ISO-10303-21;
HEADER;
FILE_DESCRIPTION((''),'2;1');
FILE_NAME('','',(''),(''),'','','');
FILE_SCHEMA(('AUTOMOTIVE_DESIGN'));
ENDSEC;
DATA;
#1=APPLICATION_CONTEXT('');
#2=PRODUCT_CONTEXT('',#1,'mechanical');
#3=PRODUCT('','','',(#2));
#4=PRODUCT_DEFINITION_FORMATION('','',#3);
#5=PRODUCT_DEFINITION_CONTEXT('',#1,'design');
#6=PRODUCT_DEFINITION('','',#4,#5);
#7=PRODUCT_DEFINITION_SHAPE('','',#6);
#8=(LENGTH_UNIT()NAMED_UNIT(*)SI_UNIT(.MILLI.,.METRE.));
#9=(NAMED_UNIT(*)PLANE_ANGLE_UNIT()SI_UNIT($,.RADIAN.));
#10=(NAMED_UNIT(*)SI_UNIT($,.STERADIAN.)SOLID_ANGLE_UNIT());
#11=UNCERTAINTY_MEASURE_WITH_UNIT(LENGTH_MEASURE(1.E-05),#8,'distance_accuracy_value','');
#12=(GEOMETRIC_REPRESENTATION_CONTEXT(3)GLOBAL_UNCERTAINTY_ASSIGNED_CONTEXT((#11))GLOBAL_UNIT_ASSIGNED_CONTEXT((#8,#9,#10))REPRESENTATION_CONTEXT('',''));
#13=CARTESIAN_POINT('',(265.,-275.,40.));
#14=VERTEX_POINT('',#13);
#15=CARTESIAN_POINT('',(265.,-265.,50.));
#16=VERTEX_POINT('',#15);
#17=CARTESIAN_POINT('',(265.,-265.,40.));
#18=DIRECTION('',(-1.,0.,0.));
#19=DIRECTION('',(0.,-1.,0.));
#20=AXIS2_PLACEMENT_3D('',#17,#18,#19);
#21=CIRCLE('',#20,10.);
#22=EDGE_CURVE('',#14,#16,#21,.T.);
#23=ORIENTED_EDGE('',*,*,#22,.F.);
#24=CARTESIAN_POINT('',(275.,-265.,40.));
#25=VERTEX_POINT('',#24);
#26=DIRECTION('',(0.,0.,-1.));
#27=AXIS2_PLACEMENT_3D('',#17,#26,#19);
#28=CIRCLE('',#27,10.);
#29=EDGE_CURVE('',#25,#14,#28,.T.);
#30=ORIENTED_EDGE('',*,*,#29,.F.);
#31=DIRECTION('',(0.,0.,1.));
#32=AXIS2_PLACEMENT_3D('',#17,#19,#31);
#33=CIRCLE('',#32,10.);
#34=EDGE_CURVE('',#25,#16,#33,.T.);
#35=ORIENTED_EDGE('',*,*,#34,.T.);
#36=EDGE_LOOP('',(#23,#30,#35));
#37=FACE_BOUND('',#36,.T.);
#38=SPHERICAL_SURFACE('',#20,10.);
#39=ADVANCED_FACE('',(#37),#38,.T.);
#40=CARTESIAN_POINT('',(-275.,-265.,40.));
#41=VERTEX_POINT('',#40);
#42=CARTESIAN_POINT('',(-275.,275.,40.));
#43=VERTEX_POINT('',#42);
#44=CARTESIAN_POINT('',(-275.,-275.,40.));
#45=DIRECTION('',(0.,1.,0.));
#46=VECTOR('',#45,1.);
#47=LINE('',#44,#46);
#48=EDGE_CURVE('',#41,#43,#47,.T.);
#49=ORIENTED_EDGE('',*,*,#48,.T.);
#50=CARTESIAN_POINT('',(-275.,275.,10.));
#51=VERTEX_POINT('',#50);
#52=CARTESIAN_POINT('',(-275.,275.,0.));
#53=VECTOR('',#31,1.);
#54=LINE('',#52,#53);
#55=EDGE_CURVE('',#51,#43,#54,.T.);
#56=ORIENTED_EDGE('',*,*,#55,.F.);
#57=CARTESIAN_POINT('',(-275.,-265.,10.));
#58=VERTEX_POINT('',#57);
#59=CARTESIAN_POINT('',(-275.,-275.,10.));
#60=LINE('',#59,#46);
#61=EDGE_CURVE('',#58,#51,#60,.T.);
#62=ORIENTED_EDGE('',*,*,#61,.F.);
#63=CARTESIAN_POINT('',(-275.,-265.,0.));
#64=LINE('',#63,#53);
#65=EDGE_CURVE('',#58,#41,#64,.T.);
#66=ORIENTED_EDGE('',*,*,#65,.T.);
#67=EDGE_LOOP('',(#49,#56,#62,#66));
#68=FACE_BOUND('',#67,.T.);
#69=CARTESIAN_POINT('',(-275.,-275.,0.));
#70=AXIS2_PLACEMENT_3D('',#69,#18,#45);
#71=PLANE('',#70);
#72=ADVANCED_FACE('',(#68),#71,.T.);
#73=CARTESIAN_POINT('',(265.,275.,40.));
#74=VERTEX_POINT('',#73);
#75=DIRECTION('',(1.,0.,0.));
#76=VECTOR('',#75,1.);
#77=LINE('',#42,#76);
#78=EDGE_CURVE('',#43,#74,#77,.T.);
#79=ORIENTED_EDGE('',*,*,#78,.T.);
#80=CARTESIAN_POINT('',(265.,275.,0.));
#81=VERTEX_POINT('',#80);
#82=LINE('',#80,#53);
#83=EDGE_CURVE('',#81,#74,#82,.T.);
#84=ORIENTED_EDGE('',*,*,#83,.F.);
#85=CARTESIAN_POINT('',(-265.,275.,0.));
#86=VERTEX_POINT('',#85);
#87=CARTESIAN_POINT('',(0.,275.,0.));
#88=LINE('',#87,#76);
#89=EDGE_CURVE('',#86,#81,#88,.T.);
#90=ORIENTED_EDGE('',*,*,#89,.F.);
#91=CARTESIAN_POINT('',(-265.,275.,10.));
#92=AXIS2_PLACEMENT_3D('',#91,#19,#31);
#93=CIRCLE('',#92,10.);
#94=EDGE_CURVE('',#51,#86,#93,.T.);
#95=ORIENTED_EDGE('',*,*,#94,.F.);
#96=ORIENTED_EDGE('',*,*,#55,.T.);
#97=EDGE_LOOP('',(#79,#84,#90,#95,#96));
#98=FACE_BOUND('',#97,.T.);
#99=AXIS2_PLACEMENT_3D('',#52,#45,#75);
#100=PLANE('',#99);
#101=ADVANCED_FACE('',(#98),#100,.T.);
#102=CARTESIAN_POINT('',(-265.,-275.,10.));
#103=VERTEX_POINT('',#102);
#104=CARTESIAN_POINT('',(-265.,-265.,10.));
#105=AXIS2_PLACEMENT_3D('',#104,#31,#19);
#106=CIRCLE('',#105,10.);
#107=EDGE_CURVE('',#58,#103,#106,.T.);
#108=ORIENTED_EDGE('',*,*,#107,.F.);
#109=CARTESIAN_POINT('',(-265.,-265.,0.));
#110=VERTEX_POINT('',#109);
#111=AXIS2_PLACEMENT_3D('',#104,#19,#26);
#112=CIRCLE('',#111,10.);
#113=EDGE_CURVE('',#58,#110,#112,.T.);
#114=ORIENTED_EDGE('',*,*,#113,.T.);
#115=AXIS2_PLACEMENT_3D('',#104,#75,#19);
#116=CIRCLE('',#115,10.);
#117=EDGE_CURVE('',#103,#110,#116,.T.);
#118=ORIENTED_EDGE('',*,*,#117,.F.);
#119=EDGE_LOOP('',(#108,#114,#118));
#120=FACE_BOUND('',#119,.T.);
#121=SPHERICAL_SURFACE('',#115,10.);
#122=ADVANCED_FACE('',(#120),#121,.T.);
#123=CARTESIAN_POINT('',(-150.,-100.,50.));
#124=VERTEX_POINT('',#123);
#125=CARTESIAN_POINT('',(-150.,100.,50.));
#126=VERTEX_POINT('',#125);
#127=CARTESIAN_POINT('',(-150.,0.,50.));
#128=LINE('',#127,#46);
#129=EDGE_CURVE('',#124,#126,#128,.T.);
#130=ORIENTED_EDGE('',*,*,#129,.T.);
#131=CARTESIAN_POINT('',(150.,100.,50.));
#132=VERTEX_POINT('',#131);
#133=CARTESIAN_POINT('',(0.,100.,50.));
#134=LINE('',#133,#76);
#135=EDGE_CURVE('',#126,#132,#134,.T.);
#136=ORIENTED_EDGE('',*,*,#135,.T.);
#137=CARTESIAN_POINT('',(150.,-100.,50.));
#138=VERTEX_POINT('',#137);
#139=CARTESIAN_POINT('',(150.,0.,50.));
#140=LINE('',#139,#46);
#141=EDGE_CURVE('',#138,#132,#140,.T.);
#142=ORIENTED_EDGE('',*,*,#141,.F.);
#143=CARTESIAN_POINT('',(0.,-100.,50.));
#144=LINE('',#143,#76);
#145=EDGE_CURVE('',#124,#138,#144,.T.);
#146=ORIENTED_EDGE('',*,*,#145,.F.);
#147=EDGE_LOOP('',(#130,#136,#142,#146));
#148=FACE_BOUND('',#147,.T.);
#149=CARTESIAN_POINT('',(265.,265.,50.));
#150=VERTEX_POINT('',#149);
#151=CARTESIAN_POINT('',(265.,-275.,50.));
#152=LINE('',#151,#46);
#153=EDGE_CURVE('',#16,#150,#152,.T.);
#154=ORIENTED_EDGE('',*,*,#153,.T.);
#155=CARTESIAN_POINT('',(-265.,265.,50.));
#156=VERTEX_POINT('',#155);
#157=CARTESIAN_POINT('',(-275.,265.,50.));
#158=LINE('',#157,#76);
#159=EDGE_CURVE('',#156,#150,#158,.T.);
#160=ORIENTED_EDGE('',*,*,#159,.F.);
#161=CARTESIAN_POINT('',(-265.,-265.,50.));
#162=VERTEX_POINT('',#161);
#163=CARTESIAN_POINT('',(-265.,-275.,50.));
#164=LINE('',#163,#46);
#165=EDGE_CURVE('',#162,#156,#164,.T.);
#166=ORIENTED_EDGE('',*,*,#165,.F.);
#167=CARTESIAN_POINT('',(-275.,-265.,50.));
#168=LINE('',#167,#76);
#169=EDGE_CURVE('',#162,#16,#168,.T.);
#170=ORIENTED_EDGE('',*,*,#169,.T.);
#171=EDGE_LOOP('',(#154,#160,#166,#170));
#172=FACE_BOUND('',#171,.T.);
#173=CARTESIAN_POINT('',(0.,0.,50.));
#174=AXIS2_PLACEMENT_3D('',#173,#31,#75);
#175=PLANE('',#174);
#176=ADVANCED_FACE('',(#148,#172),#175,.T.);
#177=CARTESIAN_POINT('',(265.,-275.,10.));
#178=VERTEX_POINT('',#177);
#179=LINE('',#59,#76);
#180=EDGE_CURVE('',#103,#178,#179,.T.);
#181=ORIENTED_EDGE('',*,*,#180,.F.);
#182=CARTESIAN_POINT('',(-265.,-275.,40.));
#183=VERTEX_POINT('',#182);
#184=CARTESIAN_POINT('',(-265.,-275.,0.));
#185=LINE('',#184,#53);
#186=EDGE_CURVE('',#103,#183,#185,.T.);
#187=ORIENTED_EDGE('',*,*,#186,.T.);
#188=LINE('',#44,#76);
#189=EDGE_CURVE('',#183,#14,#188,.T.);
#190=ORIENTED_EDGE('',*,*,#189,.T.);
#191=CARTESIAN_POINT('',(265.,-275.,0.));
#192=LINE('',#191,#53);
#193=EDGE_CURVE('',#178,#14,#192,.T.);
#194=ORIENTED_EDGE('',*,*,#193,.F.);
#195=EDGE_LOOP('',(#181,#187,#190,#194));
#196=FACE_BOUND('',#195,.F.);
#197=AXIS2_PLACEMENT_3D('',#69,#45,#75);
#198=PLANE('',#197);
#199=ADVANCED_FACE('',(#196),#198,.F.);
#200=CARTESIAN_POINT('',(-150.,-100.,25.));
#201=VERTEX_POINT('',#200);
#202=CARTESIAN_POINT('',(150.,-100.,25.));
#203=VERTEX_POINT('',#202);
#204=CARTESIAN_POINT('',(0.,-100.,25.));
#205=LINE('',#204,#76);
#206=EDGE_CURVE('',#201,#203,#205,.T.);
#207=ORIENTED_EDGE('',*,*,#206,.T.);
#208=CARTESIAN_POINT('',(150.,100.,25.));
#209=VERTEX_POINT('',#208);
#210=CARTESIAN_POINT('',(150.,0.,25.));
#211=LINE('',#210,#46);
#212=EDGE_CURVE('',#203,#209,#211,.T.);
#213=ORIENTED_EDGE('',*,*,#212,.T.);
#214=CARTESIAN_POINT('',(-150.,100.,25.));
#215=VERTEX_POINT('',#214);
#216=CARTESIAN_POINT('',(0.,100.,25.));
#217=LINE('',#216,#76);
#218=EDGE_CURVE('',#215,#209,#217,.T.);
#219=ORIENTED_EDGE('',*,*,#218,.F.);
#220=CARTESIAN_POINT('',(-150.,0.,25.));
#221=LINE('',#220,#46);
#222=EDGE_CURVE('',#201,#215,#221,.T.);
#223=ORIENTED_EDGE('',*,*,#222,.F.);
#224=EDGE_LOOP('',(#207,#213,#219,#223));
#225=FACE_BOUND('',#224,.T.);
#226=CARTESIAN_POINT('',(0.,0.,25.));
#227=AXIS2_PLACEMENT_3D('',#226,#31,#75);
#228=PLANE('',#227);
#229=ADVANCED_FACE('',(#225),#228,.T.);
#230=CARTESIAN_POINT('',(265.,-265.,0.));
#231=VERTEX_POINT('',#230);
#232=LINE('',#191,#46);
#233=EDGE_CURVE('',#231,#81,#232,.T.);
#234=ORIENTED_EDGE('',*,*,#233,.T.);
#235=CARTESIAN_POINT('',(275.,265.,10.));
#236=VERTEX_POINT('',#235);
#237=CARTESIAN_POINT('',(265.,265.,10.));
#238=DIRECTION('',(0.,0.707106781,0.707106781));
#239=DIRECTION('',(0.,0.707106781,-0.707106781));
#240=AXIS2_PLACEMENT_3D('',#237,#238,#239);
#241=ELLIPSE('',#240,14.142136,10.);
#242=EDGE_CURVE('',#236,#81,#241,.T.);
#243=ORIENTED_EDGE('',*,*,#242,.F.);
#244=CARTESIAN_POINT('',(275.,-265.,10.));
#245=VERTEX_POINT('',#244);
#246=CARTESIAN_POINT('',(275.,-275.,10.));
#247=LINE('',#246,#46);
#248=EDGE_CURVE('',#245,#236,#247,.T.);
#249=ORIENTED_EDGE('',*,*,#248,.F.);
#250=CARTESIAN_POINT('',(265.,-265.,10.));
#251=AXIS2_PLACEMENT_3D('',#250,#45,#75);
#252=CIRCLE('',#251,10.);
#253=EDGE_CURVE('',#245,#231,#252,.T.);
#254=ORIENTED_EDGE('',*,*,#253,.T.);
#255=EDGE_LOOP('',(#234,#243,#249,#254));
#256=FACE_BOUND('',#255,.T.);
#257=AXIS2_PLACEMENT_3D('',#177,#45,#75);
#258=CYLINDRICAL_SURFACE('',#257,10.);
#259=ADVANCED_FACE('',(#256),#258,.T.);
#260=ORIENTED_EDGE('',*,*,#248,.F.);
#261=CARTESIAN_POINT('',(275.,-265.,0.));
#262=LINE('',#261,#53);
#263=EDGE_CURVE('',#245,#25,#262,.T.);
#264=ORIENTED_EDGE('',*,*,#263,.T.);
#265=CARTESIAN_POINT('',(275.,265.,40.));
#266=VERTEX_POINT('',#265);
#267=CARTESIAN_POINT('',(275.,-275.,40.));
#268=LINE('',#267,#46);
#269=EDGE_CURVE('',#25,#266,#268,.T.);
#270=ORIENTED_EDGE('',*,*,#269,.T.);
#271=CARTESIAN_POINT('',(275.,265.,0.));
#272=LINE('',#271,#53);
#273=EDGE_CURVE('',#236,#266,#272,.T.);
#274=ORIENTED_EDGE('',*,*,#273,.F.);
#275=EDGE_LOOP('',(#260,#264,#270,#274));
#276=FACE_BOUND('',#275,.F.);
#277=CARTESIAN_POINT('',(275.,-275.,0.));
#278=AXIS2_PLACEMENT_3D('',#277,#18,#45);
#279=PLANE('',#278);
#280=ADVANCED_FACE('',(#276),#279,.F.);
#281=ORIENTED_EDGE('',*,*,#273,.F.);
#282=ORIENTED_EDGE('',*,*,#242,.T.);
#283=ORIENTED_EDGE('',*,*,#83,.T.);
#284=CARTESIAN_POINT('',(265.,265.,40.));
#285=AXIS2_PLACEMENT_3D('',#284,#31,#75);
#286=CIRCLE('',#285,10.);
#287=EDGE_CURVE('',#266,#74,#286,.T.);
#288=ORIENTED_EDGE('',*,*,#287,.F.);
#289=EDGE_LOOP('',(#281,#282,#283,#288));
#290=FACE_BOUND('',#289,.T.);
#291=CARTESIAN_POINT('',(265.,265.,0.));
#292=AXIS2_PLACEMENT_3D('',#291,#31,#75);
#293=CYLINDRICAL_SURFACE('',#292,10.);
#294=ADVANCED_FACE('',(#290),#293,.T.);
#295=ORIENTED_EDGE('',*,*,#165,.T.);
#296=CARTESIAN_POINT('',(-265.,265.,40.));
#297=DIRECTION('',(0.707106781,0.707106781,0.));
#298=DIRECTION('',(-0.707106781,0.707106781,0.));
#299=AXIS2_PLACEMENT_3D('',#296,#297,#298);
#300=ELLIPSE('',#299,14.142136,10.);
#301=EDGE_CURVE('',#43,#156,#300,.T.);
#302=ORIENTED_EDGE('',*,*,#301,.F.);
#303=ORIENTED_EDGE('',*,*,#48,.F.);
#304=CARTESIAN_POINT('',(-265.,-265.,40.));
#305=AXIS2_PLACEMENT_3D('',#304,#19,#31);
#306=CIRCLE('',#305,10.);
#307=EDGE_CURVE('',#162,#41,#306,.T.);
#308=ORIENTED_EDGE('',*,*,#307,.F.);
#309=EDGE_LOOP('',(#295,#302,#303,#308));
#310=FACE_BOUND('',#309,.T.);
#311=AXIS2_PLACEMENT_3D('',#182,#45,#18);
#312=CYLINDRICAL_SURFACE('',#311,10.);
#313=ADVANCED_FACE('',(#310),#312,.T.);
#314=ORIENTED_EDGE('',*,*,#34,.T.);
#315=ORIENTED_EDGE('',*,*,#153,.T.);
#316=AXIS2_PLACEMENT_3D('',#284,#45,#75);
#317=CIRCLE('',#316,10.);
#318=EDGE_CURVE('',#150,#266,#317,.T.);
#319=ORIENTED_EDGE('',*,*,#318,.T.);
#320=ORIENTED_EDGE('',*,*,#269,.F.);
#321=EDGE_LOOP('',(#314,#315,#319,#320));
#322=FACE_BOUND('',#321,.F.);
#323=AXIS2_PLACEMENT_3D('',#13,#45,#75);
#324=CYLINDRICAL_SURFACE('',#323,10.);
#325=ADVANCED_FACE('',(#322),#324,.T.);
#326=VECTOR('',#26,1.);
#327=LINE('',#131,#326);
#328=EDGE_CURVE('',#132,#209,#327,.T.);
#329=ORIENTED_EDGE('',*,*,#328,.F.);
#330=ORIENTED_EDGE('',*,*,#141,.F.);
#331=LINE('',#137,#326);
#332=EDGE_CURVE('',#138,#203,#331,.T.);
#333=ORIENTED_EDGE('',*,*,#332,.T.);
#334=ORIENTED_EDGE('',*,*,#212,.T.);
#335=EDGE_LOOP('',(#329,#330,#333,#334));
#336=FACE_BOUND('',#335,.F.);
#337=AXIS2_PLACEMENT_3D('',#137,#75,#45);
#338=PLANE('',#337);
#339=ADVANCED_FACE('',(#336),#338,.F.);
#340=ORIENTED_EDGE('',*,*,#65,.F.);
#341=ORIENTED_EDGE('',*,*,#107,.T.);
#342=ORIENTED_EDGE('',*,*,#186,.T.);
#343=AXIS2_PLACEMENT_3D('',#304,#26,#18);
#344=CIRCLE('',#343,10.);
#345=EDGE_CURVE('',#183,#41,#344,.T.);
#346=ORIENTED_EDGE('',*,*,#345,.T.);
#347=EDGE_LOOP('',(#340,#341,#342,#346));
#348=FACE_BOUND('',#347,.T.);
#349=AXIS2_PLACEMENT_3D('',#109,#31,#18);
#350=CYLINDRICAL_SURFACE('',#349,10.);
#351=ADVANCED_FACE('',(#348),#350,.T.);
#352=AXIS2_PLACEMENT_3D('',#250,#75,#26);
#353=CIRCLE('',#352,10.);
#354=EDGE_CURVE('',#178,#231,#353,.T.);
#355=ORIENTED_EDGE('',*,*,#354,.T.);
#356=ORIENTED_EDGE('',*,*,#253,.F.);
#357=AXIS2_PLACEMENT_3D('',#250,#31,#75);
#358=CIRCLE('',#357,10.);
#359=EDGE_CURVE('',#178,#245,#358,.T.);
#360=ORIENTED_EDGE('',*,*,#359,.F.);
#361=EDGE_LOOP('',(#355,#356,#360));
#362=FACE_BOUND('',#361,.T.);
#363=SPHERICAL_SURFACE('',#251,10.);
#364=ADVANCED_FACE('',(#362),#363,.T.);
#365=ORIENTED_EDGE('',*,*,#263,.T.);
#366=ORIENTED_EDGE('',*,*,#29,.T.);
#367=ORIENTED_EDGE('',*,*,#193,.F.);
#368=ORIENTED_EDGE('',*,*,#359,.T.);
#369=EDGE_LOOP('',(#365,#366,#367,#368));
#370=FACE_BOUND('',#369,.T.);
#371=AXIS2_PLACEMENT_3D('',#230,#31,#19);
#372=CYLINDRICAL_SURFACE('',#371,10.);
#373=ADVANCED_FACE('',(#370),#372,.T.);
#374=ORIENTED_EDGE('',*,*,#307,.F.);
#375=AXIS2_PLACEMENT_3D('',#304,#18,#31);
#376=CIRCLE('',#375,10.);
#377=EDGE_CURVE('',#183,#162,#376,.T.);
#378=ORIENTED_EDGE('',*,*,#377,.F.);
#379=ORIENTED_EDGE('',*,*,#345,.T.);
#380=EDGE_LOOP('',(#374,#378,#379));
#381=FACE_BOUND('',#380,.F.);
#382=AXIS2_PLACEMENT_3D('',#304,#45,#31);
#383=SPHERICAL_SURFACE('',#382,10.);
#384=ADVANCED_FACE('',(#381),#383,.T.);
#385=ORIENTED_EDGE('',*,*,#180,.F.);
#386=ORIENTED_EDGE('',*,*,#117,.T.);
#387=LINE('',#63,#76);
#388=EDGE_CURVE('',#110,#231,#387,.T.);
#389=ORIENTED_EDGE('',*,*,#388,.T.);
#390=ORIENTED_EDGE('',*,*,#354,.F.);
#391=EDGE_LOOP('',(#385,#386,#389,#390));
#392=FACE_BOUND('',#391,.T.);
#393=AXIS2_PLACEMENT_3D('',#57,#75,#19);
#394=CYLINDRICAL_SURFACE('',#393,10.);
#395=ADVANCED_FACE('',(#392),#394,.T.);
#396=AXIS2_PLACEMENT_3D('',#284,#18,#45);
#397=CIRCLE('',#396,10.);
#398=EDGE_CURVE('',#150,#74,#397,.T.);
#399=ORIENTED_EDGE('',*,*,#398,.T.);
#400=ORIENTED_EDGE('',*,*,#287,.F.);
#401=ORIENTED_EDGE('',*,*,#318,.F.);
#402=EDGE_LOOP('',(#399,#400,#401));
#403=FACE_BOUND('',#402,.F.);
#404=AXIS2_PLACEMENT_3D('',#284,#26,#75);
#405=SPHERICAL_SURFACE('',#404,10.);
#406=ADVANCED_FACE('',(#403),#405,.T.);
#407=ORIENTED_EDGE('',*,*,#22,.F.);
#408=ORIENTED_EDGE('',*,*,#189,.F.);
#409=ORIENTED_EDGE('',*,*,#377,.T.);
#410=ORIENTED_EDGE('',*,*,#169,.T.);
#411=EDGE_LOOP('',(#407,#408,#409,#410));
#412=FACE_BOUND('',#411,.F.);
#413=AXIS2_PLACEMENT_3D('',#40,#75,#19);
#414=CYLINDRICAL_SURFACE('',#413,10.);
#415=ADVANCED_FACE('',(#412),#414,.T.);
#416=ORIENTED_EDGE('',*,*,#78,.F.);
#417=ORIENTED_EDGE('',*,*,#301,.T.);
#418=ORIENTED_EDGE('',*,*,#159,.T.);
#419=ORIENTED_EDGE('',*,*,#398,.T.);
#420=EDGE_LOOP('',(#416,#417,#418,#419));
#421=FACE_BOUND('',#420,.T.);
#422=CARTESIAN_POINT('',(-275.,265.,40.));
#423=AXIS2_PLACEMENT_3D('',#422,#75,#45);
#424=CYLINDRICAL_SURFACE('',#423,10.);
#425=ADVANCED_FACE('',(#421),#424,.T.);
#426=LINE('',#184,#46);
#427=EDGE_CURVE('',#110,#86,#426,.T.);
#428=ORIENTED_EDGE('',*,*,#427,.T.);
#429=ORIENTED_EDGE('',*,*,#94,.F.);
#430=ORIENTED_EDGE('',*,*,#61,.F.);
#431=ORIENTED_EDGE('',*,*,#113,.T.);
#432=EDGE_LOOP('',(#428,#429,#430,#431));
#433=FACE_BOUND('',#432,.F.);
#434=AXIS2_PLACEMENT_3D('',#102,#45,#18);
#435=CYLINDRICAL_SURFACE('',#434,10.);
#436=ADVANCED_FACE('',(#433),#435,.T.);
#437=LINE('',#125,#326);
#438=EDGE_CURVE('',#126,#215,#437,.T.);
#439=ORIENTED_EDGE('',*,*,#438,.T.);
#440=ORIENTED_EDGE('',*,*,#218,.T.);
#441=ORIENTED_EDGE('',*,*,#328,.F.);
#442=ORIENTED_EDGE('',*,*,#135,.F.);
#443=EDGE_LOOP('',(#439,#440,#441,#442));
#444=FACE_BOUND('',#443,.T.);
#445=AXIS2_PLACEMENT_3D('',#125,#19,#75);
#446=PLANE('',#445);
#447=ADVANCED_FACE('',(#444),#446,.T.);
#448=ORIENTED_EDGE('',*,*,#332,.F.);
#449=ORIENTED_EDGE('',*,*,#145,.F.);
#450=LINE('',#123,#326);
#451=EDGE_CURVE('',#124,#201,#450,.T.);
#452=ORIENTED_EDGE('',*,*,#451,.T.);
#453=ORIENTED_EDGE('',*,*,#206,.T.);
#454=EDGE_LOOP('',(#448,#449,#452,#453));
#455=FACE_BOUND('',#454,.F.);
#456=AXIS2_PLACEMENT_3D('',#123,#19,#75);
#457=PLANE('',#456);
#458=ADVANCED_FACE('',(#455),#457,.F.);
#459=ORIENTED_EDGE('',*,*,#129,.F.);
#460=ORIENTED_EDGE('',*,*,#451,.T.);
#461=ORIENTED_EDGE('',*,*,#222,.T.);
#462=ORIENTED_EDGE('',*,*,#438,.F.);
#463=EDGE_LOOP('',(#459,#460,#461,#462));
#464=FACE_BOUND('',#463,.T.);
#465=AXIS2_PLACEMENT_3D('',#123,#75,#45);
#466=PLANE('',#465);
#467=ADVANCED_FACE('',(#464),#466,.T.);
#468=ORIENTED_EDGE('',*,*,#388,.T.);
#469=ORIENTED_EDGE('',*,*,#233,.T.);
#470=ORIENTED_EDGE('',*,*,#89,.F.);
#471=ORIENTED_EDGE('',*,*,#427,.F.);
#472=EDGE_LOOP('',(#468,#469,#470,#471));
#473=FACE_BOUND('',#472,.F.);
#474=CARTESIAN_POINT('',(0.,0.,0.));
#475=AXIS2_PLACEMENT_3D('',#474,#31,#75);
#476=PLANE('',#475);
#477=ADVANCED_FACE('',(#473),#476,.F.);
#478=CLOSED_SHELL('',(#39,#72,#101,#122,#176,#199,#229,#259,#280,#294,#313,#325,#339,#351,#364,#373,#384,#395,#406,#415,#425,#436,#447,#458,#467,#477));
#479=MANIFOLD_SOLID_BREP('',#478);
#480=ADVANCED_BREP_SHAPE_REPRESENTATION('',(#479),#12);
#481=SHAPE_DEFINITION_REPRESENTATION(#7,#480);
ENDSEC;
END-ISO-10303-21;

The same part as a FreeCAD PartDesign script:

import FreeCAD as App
import Part
import Sketcher


def edges_at(feature, points):
    """Names of the edges that pass closest to the given points."""
    edges = feature.Shape.Edges
    near = lambda p: min(range(len(edges)), key=lambda i: edges[i].distToShape(Part.Vertex(*p))[0])
    return sorted({f"Edge{near(p) + 1}" for p in points})


def add_polygon(sketch, points):
    """Adds a closed chain of lines whose ends are joined by coincident constraints."""
    first, n = sketch.GeometryCount, len(points)
    for a, b in zip(points, points[1:] + points[:1]):
        sketch.addGeometry(Part.LineSegment(App.Vector(*a, 0), App.Vector(*b, 0)), False)
    for i in range(n):
        sketch.addConstraint(Sketcher.Constraint("Coincident", first + i, 2, first + (i + 1) % n, 1))

doc = App.newDocument("Part")
body = doc.addObject("PartDesign::Body", "Body")

# Sketch on XY plane
sketch1 = body.newObject("Sketcher::SketchObject", "Sketch")
sketch1.AttachmentSupport = (doc.getObject("XY_Plane"), [""])
sketch1.MapMode = "FlatFace"
add_polygon(sketch1, [(-275, 275), (-275, -275), (275, -275), (275, 275)])  # lines 0-3
sketch1.addConstraint(Sketcher.Constraint("Vertical", 0))
sketch1.addConstraint(Sketcher.Constraint("Horizontal", 1))
sketch1.addConstraint(Sketcher.Constraint("Vertical", 2))
sketch1.addConstraint(Sketcher.Constraint("Horizontal", 3))
sketch1.addConstraint(Sketcher.Constraint("Symmetric", 0, 2, 2, 2, -1, 1))
sketch1.addConstraint(Sketcher.Constraint("Equal", 3, 0))
sketch1.addConstraint(Sketcher.Constraint("DistanceX", 1, 1, 1, 2, 550.0))
pad1 = body.newObject("PartDesign::Pad", "Pad")
pad1.Profile = sketch1
pad1.Length = 50
doc.recompute()

fillet = body.newObject("PartDesign::Fillet", "Fillet")
fillet.Base = (pad1, edges_at(pad1, [
    (-275, 0, 50),
    (0, -275, 50),
    (275, 0, 0),
    (275, -275, 25),
    (275, 275, 25),
    (275, 0, 50),
    (0, 275, 50),
    (0, -275, 0),
    (-275, -275, 25),
    (-275, 0, 0),
]))
fillet.Radius = 10

# Sketch on XY plane
sketch2 = body.newObject("Sketcher::SketchObject", "Sketch001")
sketch2.AttachmentSupport = (doc.getObject("XY_Plane"), [""])
sketch2.MapMode = "FlatFace"
sketch2.AttachmentOffset = App.Placement(App.Vector(0, 0, 50), App.Rotation())
add_polygon(sketch2, [(-150, 100), (-150, -100), (150, -100), (150, 100)])  # lines 0-3
sketch2.addConstraint(Sketcher.Constraint("Vertical", 0))
sketch2.addConstraint(Sketcher.Constraint("Horizontal", 1))
sketch2.addConstraint(Sketcher.Constraint("Vertical", 2))
sketch2.addConstraint(Sketcher.Constraint("Horizontal", 3))
sketch2.addConstraint(Sketcher.Constraint("Symmetric", 0, 2, 2, 2, -1, 1))
sketch2.addConstraint(Sketcher.Constraint("DistanceX", 1, 1, 1, 2, 300.0))
sketch2.addConstraint(Sketcher.Constraint("DistanceY", 0, 2, 0, 1, 200.0))
pocket1 = body.newObject("PartDesign::Pocket", "Pocket")
pocket1.Profile = sketch2
pocket1.Length = 25

doc.recompute()
